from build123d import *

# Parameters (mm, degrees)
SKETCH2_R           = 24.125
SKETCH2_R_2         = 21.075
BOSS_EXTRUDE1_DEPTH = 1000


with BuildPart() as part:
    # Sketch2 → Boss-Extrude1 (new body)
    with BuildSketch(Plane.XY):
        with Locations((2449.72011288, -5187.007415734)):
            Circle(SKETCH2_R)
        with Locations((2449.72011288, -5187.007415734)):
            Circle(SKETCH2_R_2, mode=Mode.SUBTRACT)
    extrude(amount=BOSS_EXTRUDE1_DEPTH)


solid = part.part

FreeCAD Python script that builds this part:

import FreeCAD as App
import Part
import Sketcher
Q = App.Units.Quantity

doc = App.newDocument("Part")
body = doc.addObject("PartDesign::Body", "Body")

sketch1 = body.newObject("Sketcher::SketchObject", "Sketch")
sketch1.AttachmentSupport = (doc.getObject("XY_Plane"), [""])
sketch1.MapMode = "FlatFace"
sketch1.addGeometry([
    Part.Circle(App.Vector(2450, -5187, 0), App.Vector(0, 0, 1), 24),
    Part.Circle(App.Vector(2450, -5187, 0), App.Vector(0, 0, 1), 21),
], False)
sketch1.addConstraint([
    Sketcher.Constraint("Coincident", 1, 3, 0, 3),
    Sketcher.Constraint("Diameter", 0, Q("48.25 mm")),
    Sketcher.Constraint("Diameter", 1, Q("42.15 mm")),
    Sketcher.Constraint("DistanceX", -1, 1, 0, 3, Q("2449.720113 mm")),
    Sketcher.Constraint("DistanceY", 0, 3, -1, 1, Q("5187.007416 mm")),
])
pad1 = body.newObject("PartDesign::Pad", "Pad")
pad1.Profile = sketch1
pad1.Length = 1000

doc.recompute()
